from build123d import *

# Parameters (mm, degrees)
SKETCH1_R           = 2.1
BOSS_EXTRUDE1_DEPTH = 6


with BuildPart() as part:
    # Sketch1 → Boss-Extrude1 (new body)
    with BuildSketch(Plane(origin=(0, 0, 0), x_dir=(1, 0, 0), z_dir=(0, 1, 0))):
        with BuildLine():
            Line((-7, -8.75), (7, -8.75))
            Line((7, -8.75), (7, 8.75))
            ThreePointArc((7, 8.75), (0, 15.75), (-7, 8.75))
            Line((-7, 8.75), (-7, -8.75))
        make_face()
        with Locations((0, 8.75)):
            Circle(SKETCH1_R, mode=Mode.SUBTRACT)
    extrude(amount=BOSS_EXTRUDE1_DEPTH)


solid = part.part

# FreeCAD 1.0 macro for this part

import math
import FreeCAD as App
import Part
import Sketcher

doc = App.newDocument("Part")
body = doc.addObject("PartDesign::Body", "Body")

# Sketch on XZ plane
sketch1 = body.newObject("Sketcher::SketchObject", "Sketch")
sketch1.AttachmentSupport = (doc.getObject("XZ_Plane"), [""])
sketch1.MapMode = "FlatFace"
sketch1.addGeometry(Part.LineSegment(App.Vector(-7, 8.75, 0), App.Vector(7, 8.75, 0)), False)
sketch1.addGeometry(Part.LineSegment(App.Vector(7, 8.75, 0), App.Vector(7, -8.75, 0)), False)
sketch1.addGeometry(Part.ArcOfCircle(Part.Circle(App.Vector(0, -8.75, 0), App.Vector(0, 0, 1), 7), math.radians(180), math.radians(360)), False)
sketch1.addGeometry(Part.LineSegment(App.Vector(-7, -8.75, 0), App.Vector(-7, 8.75, 0)), False)
sketch1.addGeometry(Part.Circle(App.Vector(0, -8.75, 0), App.Vector(0, 0, 1), 2.1), False)
sketch1.addConstraint(Sketcher.Constraint("Coincident", 0, 2, 1, 1))
sketch1.addConstraint(Sketcher.Constraint("Tangent", 1, 2, 2, 2))
sketch1.addConstraint(Sketcher.Constraint("Tangent", 2, 1, 3, 1))
sketch1.addConstraint(Sketcher.Constraint("Coincident", 3, 2, 0, 1))
sketch1.addConstraint(Sketcher.Constraint("Horizontal", 0))
sketch1.addConstraint(Sketcher.Constraint("Vertical", 1))
sketch1.addConstraint(Sketcher.Constraint("Vertical", 3))
sketch1.addConstraint(Sketcher.Constraint("Coincident", 4, 3, 2, 3))
sketch1.addConstraint(Sketcher.Constraint("Symmetric", 0, 2, 2, 1, -1, 1))
sketch1.addConstraint(Sketcher.Constraint("Radius", 2, 7.0))
sketch1.addConstraint(Sketcher.Constraint("Diameter", 4, 4.2))
sketch1.addConstraint(Sketcher.Constraint("DistanceY", 1, 2, 1, 1, 17.5))
pad1 = body.newObject("PartDesign::Pad", "Pad")
pad1.Profile = sketch1
pad1.Length = 6
pad1.Reversed = True

doc.recompute()
